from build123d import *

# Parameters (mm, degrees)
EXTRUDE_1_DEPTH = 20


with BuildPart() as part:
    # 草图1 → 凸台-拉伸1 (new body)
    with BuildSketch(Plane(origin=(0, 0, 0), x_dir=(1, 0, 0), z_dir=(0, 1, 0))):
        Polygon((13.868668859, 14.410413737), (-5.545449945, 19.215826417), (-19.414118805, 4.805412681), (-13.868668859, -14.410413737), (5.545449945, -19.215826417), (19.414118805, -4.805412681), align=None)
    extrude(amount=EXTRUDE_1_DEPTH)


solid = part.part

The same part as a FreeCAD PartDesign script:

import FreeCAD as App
import Part
import Sketcher
from FreeCAD import Vector
Q = App.Units.Quantity


def add_polygon(sketch, points):
    """Adds a closed chain of lines whose ends are joined by coincident constraints."""
    first, n = sketch.GeometryCount, len(points)
    for a, b in zip(points, points[1:] + points[:1]):
        sketch.addGeometry(Part.LineSegment(App.Vector(*a, 0), App.Vector(*b, 0)), False)
    for i in range(n):
        sketch.addConstraint(Sketcher.Constraint("Coincident", first + i, 2, first + (i + 1) % n, 1))

doc = App.newDocument("Part")
body = doc.addObject("PartDesign::Body", "Body")

# Sketch on XZ plane
sketch1 = body.newObject("Sketcher::SketchObject", "Sketch")
sketch1.AttachmentSupport = (doc.getObject("XZ_Plane"), [""])
sketch1.MapMode = "FlatFace"
add_polygon(sketch1, [(14, -14), (-6, -19), (-19, -5), (-14, 14), (6, 19), (19, 5)])  # lines 0-5
sketch1.addConstraint([
    Sketcher.Constraint("Symmetric", 0, 2, 3, 2, -1, 1),
    Sketcher.Constraint("Symmetric", 1, 2, 4, 2, -1, 1),
    Sketcher.Constraint("Symmetric", 2, 2, 5, 2, -1, 1),
    Sketcher.Constraint("Equal", 0, 1),
    Sketcher.Constraint("Equal", 1, 2),
    Sketcher.Constraint("Distance", 0, Q("20 mm")),
    Sketcher.Constraint("DistanceY", 4, 2, 2, 2, Q("9.605001 mm")),
    Sketcher.Constraint("DistanceX", 0, 2, 3, 2, Q("11.0909 mm")),
    Sketcher.Constraint("DistanceX", 1, 2, -1, 1, Q("19.414119 mm")),
])
pad1 = body.newObject("PartDesign::Pad", "Pad")
pad1.Profile = sketch1
pad1.Length = 20
pad1.Reversed = True

doc.recompute()
